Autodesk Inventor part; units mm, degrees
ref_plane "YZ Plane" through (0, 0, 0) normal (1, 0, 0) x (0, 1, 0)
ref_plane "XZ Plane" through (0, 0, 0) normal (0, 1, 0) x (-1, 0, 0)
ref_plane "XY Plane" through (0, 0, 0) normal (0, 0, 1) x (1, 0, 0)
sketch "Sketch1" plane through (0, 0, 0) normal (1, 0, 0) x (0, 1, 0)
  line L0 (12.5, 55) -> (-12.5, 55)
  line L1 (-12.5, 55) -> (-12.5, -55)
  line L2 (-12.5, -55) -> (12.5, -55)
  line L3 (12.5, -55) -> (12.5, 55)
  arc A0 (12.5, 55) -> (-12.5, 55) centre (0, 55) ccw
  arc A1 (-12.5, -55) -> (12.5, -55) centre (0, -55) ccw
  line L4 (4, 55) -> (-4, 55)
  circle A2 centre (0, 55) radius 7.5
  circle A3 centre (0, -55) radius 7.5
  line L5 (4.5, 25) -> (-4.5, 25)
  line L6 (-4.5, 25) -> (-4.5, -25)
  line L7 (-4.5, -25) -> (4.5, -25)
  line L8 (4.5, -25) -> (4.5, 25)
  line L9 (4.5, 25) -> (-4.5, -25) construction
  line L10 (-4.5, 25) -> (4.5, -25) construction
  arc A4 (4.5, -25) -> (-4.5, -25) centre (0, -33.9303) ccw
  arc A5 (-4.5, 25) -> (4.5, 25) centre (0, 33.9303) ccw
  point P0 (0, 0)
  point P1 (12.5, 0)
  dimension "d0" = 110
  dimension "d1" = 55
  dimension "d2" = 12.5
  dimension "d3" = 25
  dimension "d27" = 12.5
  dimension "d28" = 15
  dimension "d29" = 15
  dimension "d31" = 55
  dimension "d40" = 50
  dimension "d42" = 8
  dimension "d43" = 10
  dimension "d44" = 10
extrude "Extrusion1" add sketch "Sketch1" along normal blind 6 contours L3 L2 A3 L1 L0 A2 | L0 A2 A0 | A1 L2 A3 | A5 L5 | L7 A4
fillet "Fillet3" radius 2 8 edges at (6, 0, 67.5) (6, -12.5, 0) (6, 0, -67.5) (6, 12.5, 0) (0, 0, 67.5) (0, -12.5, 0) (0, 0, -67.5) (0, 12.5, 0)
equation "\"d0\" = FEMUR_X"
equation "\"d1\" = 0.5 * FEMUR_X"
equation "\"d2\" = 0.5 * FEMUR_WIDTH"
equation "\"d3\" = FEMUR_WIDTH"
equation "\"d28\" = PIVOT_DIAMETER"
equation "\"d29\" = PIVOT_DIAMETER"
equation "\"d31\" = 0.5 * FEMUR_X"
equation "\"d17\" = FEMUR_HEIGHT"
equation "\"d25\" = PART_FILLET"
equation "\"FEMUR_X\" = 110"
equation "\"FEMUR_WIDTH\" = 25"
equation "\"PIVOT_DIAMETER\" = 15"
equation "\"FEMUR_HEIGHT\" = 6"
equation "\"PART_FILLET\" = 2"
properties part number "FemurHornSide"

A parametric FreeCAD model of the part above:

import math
import FreeCAD as App
import Part
import Sketcher

V = App.Vector
Q = App.Units.Quantity


def edges_at(feature, points):
    """Names of the edges that pass closest to the given points."""
    edges = feature.Shape.Edges
    near = lambda p: min(range(len(edges)), key=lambda i: edges[i].distToShape(Part.Vertex(*p))[0])
    return sorted({f"Edge{near(p) + 1}" for p in points})

doc = App.newDocument("Part")
body = doc.addObject("PartDesign::Body", "Body")

# Sketch on YZ plane
sketch1 = body.newObject("Sketcher::SketchObject", "Sketch")
sketch1.AttachmentSupport = (doc.getObject("YZ_Plane"), [""])
sketch1.MapMode = "FlatFace"
sketch1.addGeometry(Part.LineSegment(V(12, -55, 0), V(12, 55, 0)), False)
sketch1.addGeometry(Part.ArcOfCircle(Part.Circle(V(0, 55, 0), V(0, 0, 1), 12), math.radians(0), math.radians(180)), False)
sketch1.addGeometry(Part.LineSegment(V(-12, 55, 0), V(-12, -55, 0)), False)
sketch1.addGeometry(Part.ArcOfCircle(Part.Circle(V(0, -55, 0), V(0, 0, 1), 12), math.radians(180), math.radians(360)), False)
sketch1.addGeometry(Part.Circle(V(0, -55, 0), V(0, 0, 1), 8), False)
sketch1.addGeometry(Part.Circle(V(0, 55, 0), V(0, 0, 1), 8), False)
sketch1.addGeometry(Part.LineSegment(V(-4, -25, 0), V(-4, 25, 0)), False)
sketch1.addGeometry(Part.ArcOfCircle(Part.Circle(V(0, 34, 0), V(0, 0, 1), 10), math.radians(-117), math.radians(-63)), False)
sketch1.addGeometry(Part.LineSegment(V(4, 25, 0), V(4, -25, 0)), False)
sketch1.addGeometry(Part.ArcOfCircle(Part.Circle(V(0, -34, 0), V(0, 0, 1), 10), math.radians(63), math.radians(117)), False)
sketch1.addConstraint(Sketcher.Constraint("Tangent", 0, 2, 1, 1))
sketch1.addConstraint(Sketcher.Constraint("Tangent", 1, 2, 2, 1))
sketch1.addConstraint(Sketcher.Constraint("Tangent", 2, 2, 3, 1))
sketch1.addConstraint(Sketcher.Constraint("Tangent", 3, 2, 0, 1))
sketch1.addConstraint(Sketcher.Constraint("Coincident", 6, 2, 7, 1))
sketch1.addConstraint(Sketcher.Constraint("Coincident", 7, 2, 8, 1))
sketch1.addConstraint(Sketcher.Constraint("Coincident", 8, 2, 9, 1))
sketch1.addConstraint(Sketcher.Constraint("Coincident", 9, 2, 6, 1))
sketch1.addConstraint(Sketcher.Constraint("Vertical", 0))
sketch1.addConstraint(Sketcher.Constraint("Vertical", 2))
sketch1.addConstraint(Sketcher.Constraint("Vertical", 6))
sketch1.addConstraint(Sketcher.Constraint("Vertical", 8))
sketch1.addConstraint(Sketcher.Constraint("Coincident", 4, 3, 3, 3))
sketch1.addConstraint(Sketcher.Constraint("Coincident", 5, 3, 1, 3))
sketch1.addConstraint(Sketcher.Constraint("Equal", 4, 5))
sketch1.addConstraint(Sketcher.Constraint("Equal", 7, 9))
sketch1.addConstraint(Sketcher.Constraint("Symmetric", 1, 3, 3, 3, -1, 1))
sketch1.addConstraint(Sketcher.Constraint("Symmetric", 7, 3, 9, 3, -1, 1))
sketch1.addConstraint(Sketcher.Constraint("Symmetric", 6, 2, 7, 2, -2))
sketch1.addConstraint(Sketcher.Constraint("Diameter", 4, Q("15 mm")))
sketch1.addConstraint(Sketcher.Constraint("Radius", 7, Q("10 mm")))
sketch1.addConstraint(Sketcher.Constraint("Radius", 1, Q("12.5 mm")))
sketch1.addConstraint(Sketcher.Constraint("DistanceY", 0, 1, 0, 2, Q("110 mm")))
sketch1.addConstraint(Sketcher.Constraint("DistanceY", 6, 1, 6, 2, Q("50 mm")))
sketch1.addConstraint(Sketcher.Constraint("DistanceX", 1, 2, 6, 2, Q("8 mm")))
pad1 = body.newObject("PartDesign::Pad", "Pad")
pad1.Profile = sketch1
pad1.Length = 6
doc.recompute()

fillet = body.newObject("PartDesign::Fillet", "Fillet")
fillet.Base = (pad1, edges_at(pad1, [
    (6, 0, 67.5),
    (6, -12.5, 0),
    (6, 0, -67.5),
    (6, 12.5, 0),
    (0, 0, 67.5),
    (0, -12.5, 0),
    (0, 0, -67.5),
    (0, 12.5, 0),
]))
fillet.Radius = 2

doc.recompute()
